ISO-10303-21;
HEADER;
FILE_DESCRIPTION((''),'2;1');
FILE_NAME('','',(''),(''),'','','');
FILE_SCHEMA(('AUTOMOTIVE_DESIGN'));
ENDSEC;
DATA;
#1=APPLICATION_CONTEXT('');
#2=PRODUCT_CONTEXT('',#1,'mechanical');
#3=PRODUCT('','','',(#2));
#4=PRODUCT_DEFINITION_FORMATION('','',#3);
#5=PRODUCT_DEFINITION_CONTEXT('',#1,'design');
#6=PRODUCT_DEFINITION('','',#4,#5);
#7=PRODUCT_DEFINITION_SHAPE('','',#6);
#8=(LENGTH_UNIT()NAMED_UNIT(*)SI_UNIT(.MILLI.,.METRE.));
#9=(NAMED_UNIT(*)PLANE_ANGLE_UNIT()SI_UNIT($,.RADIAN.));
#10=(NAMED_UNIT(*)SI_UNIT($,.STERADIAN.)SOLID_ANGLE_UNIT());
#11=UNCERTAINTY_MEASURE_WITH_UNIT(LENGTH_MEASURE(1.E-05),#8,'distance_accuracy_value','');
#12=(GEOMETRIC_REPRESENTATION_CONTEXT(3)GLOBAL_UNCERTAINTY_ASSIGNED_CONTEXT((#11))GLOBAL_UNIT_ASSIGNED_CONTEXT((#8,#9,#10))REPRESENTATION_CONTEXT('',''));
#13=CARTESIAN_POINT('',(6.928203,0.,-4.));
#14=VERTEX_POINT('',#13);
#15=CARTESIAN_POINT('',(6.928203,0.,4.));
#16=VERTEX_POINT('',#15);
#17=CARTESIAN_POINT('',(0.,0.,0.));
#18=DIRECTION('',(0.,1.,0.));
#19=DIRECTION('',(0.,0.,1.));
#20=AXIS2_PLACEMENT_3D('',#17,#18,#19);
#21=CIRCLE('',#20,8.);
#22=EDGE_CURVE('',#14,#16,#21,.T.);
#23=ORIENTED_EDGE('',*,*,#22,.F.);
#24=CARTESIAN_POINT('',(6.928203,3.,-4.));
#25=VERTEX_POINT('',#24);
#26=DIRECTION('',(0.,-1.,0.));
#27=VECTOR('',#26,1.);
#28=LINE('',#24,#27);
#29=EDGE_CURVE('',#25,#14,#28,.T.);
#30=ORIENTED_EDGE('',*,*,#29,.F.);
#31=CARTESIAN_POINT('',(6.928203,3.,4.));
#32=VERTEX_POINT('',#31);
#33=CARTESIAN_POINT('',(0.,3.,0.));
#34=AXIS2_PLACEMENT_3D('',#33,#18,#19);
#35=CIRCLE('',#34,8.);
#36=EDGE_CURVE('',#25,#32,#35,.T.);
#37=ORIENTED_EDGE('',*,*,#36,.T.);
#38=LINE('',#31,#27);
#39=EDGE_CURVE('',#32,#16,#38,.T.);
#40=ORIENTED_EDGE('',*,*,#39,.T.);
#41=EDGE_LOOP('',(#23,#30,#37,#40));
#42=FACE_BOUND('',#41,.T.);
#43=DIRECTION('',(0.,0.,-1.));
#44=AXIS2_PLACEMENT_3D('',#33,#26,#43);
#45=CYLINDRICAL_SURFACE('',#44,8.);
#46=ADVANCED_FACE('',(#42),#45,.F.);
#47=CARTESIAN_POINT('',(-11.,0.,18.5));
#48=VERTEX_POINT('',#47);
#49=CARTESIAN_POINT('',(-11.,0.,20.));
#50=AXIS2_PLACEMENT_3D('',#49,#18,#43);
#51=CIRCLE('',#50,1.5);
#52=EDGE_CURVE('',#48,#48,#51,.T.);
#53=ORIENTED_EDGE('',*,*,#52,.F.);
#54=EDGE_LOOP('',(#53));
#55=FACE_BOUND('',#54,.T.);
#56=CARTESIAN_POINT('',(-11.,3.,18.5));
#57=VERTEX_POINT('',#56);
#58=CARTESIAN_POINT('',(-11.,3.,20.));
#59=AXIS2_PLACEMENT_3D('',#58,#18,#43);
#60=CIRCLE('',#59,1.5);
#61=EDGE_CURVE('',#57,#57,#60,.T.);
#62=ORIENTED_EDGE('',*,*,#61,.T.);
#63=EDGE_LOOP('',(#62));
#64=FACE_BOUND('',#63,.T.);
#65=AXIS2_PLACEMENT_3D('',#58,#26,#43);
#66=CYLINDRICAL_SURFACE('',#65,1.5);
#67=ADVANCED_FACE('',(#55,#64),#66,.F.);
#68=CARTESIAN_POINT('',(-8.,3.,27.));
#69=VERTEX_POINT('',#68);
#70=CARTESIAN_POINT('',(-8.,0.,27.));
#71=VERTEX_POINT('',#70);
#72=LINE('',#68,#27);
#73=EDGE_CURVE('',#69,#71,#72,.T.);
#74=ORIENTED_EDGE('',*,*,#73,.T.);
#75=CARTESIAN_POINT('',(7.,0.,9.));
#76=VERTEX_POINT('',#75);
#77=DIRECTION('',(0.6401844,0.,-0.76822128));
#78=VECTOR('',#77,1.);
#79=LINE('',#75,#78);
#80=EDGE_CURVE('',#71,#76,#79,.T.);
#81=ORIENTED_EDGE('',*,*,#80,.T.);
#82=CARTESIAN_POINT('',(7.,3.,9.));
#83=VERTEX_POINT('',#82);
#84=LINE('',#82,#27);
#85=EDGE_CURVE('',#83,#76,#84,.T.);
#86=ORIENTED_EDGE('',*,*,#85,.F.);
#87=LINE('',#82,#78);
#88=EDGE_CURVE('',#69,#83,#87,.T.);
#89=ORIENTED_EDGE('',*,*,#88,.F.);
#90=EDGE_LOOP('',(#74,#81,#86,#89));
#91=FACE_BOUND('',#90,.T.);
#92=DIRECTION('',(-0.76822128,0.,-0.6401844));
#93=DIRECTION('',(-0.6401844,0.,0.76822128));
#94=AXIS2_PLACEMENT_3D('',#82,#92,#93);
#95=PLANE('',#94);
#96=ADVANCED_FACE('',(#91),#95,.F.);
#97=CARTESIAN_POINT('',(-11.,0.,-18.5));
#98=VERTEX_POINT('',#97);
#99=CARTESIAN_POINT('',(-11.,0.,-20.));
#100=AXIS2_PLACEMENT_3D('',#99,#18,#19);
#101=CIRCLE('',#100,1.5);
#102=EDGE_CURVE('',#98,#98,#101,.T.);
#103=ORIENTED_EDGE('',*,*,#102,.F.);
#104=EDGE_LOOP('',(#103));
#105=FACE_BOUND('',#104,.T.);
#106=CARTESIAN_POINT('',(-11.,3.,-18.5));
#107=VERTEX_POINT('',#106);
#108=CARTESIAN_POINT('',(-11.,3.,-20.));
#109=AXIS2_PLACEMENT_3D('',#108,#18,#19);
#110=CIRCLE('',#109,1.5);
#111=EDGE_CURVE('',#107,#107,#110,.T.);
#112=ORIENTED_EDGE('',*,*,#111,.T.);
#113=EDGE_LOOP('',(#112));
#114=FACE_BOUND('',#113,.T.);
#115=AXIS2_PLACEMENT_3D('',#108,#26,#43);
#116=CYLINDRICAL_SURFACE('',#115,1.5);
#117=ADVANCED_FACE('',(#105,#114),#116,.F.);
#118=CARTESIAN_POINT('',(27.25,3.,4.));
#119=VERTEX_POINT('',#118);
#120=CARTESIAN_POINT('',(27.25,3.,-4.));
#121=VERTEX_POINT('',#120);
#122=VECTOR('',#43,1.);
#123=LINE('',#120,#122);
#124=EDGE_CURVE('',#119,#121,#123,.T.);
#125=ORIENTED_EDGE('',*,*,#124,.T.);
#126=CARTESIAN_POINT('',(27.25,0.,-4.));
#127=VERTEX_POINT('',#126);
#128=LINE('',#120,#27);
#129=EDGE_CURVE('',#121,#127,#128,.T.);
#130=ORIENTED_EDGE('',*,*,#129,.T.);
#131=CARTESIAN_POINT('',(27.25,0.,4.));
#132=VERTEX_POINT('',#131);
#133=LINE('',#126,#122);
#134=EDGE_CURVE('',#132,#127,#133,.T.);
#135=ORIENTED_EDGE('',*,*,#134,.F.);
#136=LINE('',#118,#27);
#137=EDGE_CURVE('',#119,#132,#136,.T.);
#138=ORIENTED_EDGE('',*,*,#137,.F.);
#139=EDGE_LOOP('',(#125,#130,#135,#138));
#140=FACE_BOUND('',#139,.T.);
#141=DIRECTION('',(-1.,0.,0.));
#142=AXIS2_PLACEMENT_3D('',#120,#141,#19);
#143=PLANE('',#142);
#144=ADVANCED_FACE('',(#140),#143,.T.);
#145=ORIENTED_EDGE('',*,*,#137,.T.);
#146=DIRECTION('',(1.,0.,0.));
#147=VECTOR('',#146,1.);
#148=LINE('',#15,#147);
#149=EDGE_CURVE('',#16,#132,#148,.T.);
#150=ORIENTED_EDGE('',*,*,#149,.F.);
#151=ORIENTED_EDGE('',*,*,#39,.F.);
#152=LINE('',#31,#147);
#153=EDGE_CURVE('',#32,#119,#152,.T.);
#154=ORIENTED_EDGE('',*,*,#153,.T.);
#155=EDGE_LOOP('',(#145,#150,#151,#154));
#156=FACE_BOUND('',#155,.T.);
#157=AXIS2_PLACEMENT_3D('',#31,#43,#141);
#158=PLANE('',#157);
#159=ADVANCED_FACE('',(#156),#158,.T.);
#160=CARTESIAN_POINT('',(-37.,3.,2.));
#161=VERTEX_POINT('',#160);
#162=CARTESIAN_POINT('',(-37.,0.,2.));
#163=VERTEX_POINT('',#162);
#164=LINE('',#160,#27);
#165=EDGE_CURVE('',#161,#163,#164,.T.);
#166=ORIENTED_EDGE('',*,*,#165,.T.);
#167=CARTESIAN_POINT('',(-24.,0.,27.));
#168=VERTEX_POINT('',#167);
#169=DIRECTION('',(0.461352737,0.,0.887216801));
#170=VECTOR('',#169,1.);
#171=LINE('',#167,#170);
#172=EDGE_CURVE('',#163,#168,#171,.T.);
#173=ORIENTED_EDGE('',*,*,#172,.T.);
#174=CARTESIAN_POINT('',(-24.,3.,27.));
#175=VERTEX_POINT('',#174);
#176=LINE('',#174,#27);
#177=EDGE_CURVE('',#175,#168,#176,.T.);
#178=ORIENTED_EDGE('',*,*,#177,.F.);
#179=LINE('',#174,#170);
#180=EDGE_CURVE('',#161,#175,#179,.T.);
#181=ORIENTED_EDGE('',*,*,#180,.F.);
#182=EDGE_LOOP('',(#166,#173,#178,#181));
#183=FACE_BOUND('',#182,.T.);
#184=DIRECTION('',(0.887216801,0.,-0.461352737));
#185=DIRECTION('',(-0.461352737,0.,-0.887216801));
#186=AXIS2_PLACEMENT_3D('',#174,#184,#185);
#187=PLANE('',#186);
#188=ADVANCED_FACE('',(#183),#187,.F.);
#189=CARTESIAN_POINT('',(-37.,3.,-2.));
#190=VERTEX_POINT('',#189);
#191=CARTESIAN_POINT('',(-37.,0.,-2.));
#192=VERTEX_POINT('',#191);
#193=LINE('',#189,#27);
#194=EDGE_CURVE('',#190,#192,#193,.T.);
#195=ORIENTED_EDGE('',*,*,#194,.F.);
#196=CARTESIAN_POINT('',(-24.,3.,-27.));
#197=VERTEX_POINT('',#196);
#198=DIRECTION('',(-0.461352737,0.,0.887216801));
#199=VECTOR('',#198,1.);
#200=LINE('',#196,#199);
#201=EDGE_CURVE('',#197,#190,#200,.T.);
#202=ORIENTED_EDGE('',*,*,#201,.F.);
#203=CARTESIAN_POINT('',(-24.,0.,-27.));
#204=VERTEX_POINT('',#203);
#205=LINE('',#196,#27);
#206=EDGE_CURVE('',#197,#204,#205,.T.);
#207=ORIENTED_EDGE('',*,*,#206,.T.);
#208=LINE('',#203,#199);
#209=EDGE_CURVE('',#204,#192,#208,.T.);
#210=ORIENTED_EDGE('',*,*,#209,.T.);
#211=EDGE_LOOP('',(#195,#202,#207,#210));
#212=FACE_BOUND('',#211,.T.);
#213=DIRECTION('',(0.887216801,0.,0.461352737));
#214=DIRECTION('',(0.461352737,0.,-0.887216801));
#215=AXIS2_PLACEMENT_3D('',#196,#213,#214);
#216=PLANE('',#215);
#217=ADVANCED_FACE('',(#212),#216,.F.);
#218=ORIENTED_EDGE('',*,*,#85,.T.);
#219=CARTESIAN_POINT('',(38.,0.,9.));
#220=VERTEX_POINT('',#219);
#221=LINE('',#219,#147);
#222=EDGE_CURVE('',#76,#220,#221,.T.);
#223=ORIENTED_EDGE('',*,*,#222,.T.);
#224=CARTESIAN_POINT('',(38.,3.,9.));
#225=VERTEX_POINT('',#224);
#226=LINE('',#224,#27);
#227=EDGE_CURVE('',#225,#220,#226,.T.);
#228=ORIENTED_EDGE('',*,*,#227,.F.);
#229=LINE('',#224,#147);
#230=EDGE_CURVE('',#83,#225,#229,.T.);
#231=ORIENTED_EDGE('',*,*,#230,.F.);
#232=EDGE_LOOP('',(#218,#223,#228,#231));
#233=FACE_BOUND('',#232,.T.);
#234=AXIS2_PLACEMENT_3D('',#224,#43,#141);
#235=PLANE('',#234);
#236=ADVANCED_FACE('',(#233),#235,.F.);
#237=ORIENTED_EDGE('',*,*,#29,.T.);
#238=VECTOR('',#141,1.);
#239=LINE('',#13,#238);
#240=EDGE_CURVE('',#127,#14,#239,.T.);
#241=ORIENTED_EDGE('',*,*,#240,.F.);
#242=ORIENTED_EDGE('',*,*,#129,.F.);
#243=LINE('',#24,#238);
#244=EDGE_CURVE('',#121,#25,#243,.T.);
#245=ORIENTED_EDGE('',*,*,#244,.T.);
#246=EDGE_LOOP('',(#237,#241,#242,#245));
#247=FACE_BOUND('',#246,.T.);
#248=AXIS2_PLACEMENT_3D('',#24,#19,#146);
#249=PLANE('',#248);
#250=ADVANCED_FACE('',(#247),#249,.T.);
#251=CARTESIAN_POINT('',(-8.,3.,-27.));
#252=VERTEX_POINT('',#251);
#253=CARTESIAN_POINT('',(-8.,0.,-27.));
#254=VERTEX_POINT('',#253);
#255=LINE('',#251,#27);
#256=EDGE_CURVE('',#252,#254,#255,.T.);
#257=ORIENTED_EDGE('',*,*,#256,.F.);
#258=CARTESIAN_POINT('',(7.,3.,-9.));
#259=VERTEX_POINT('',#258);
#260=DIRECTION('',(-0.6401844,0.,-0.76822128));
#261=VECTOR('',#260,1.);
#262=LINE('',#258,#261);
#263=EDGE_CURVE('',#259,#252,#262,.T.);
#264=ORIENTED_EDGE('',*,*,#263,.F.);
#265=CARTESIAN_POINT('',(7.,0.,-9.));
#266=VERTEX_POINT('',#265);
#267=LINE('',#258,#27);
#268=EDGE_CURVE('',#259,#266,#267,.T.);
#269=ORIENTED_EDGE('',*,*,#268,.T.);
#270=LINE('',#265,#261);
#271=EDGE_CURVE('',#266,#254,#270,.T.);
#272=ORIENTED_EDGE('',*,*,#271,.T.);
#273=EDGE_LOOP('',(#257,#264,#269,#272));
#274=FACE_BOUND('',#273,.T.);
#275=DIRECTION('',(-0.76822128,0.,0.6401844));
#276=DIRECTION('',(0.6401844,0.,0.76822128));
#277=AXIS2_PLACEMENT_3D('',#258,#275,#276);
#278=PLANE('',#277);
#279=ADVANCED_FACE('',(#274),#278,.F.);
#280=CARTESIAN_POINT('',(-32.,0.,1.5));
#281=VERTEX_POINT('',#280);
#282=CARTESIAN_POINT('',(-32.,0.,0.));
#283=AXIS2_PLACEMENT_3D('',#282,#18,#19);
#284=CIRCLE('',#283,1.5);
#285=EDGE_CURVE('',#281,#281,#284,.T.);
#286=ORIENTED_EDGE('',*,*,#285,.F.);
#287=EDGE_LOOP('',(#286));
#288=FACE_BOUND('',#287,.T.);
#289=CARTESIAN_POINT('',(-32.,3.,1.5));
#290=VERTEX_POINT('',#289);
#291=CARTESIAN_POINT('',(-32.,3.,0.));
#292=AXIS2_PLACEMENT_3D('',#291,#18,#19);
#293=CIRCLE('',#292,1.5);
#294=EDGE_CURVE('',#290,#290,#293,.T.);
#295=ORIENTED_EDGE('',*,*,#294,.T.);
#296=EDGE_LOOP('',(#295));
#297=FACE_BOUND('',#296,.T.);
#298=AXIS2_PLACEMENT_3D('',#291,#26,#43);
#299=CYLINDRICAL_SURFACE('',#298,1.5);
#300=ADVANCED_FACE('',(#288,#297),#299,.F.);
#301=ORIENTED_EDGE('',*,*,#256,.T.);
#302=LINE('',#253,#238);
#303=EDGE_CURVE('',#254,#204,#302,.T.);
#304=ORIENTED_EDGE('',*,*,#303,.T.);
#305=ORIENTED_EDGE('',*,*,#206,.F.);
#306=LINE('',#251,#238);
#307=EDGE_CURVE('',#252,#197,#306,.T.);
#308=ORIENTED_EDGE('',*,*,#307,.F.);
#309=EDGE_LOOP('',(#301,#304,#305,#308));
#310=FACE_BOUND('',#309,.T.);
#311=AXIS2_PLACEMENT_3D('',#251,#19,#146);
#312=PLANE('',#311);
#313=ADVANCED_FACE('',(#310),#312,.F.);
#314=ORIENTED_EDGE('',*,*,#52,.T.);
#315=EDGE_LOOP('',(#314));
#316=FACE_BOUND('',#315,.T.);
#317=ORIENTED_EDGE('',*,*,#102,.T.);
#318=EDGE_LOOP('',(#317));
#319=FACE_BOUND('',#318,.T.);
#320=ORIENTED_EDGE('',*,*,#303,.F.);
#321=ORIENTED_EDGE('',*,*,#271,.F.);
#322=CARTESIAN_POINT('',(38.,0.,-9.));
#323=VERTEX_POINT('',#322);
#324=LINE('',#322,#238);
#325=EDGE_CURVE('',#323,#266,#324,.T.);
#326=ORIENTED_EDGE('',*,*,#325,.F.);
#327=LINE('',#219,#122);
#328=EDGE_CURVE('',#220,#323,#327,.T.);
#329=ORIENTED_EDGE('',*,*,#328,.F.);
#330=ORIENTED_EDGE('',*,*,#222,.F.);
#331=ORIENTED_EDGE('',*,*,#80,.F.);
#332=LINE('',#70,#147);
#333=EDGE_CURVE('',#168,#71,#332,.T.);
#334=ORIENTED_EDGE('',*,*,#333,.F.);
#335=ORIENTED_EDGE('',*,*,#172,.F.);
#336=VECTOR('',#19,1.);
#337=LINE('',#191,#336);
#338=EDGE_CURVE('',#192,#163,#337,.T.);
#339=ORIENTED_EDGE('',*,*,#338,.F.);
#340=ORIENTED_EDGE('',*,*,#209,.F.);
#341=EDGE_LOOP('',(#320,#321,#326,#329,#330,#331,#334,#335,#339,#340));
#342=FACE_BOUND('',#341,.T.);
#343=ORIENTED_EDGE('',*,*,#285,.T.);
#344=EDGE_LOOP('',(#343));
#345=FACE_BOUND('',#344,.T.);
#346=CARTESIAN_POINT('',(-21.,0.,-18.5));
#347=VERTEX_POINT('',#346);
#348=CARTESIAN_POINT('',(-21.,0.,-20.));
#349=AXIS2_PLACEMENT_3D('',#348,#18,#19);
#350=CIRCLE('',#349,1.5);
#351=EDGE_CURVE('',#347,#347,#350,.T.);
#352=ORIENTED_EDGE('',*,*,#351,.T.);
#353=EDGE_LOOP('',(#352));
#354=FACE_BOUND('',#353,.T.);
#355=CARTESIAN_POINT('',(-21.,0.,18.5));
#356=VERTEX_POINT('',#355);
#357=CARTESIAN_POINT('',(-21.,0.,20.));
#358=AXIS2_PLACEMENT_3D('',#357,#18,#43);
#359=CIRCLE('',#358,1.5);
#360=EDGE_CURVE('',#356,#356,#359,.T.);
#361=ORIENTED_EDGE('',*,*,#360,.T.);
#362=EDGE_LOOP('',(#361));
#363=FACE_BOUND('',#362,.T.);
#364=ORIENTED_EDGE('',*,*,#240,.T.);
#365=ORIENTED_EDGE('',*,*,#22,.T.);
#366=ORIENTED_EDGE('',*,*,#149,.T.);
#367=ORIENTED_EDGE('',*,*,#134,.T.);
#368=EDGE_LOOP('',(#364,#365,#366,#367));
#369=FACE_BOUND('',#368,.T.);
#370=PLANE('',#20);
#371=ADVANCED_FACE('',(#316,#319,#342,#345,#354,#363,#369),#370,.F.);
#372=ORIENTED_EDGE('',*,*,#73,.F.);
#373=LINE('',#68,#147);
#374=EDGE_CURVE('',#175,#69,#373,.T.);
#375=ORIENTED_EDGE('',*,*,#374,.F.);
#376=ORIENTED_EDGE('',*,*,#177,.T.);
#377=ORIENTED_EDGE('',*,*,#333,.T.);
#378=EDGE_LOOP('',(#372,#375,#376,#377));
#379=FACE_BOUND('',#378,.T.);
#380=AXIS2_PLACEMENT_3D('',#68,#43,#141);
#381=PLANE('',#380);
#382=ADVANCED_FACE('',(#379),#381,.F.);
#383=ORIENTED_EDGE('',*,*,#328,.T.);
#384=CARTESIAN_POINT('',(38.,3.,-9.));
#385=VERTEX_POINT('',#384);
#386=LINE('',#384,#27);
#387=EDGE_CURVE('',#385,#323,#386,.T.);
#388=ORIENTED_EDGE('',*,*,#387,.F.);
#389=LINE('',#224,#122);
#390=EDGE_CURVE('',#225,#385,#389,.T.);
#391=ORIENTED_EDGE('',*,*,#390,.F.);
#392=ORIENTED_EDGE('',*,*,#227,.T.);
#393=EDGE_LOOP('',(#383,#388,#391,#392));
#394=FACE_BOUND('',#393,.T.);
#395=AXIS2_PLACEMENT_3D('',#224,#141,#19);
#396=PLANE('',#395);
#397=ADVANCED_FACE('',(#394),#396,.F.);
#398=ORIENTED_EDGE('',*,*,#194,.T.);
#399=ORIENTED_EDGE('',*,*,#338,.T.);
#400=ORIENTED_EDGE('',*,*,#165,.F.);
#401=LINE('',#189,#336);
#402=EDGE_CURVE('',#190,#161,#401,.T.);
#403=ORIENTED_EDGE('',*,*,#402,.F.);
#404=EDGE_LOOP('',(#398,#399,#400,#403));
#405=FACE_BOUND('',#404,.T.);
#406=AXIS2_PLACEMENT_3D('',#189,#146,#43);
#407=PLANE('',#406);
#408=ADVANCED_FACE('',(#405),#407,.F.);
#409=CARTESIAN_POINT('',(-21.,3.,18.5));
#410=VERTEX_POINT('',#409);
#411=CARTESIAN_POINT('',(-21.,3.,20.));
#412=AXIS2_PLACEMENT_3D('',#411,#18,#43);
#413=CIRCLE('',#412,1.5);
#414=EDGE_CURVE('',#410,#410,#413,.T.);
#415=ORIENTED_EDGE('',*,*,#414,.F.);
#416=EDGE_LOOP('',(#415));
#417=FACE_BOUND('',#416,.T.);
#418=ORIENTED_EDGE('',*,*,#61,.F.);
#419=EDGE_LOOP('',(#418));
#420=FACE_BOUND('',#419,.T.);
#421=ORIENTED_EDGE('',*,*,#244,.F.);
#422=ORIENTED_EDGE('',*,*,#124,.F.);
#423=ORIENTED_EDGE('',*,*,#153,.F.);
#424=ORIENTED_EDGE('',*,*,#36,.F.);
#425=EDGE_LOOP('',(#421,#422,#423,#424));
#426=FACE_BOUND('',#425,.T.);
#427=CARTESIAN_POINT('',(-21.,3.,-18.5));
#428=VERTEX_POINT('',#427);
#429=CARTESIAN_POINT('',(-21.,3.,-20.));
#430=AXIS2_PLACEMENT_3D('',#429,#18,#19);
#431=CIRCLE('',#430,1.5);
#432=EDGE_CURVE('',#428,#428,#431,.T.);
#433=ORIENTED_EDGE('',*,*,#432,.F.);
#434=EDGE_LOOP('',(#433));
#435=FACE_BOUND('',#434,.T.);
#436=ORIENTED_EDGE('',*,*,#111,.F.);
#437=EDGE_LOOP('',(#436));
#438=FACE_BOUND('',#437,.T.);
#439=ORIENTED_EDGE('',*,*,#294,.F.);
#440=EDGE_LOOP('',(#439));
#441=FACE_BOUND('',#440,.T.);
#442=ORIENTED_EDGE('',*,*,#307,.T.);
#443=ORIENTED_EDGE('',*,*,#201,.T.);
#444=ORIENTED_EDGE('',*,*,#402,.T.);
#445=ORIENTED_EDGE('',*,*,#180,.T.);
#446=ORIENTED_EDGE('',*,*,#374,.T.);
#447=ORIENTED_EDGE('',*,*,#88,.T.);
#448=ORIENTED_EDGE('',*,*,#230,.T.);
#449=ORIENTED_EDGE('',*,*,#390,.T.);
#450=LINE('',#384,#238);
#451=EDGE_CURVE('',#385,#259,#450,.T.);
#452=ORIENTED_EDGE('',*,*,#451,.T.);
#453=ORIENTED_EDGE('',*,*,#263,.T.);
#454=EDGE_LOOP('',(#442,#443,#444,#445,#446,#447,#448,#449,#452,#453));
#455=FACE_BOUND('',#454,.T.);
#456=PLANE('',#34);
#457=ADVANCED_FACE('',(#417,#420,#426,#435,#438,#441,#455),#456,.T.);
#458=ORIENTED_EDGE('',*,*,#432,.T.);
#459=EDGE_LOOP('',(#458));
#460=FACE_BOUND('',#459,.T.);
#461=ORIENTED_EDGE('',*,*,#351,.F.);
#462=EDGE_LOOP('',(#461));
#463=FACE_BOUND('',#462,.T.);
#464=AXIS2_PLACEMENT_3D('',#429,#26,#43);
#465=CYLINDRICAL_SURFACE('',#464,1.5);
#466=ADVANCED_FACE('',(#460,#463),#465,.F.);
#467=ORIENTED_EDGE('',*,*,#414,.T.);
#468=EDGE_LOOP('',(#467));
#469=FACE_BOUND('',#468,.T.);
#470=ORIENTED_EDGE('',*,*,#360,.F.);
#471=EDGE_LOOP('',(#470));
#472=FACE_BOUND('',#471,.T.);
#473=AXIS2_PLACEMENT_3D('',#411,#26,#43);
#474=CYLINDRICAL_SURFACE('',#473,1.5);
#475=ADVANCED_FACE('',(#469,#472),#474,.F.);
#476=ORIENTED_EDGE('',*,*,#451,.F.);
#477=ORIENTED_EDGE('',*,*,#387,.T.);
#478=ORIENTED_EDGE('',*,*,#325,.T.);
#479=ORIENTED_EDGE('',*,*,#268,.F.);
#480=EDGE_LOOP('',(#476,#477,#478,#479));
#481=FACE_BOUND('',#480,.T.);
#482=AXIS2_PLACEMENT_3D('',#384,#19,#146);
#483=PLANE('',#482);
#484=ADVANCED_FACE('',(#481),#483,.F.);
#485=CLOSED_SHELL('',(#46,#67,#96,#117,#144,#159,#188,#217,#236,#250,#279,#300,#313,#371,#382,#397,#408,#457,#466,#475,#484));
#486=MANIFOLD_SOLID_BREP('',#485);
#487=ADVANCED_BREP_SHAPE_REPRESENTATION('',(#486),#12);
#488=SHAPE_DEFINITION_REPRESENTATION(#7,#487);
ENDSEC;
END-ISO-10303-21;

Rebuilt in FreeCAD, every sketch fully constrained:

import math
import FreeCAD as App
import Part
import Sketcher
from FreeCAD import Vector
Q = App.Units.Quantity

doc = App.newDocument("Part")
body = doc.addObject("PartDesign::Body", "Body")

# Sketch on XZ plane
sketch1 = body.newObject("Sketcher::SketchObject", "Sketch")
sketch1.AttachmentSupport = (doc.getObject("XZ_Plane"), [""])
sketch1.MapMode = "FlatFace"
sketch1.addGeometry([
    Part.LineSegment(Vector(38, 9, 0), Vector(38, -9, 0)),  # 0
    Part.LineSegment(Vector(38, -9, 0), Vector(7, -9, 0)),  # 1
    Part.LineSegment(Vector(7, -9, 0), Vector(-8, -27, 0)),  # 2
    Part.LineSegment(Vector(-8, -27, 0), Vector(-24, -27, 0)),  # 3
    Part.LineSegment(Vector(-24, -27, 0), Vector(-37, -2, 0)),  # 4
    Part.LineSegment(Vector(-37, -2, 0), Vector(-37, 2, 0)),  # 5
    Part.LineSegment(Vector(-37, 2, 0), Vector(-24, 27, 0)),  # 6
    Part.LineSegment(Vector(-24, 27, 0), Vector(-8, 27, 0)),  # 7
    Part.LineSegment(Vector(-8, 27, 0), Vector(7, 9, 0)),  # 8
    Part.LineSegment(Vector(7, 9, 0), Vector(38, 9, 0)),  # 9
    Part.Circle(Vector(-21, 20, 0), Vector(0, 0, 1), 1.5),  # 10
    Part.Circle(Vector(-11, 20, 0), Vector(0, 0, 1), 1.5),  # 11
    Part.Circle(Vector(-32, 0, 0), Vector(0, 0, 1), 1.5),  # 12
    Part.Circle(Vector(-21, -20, 0), Vector(0, 0, 1), 1.5),  # 13
    Part.Circle(Vector(-11, -20, 0), Vector(0, 0, 1), 1.5),  # 14
    Part.ArcOfCircle(Part.Circle(Vector(0, 0, 0), Vector(0, 0, 1), 8), math.radians(30), math.radians(330)),  # 15
    Part.LineSegment(Vector(6.9, -4, 0), Vector(27.2, -4, 0)),  # 16
    Part.LineSegment(Vector(27.2, -4, 0), Vector(27.2, 4, 0)),  # 17
    Part.LineSegment(Vector(27.2, 4, 0), Vector(6.9, 4, 0)),  # 18
], False)
sketch1.addConstraint([
    Sketcher.Constraint("Coincident", 0, 2, 1, 1),
    Sketcher.Constraint("Coincident", 1, 2, 2, 1),
    Sketcher.Constraint("Coincident", 2, 2, 3, 1),
    Sketcher.Constraint("Coincident", 3, 2, 4, 1),
    Sketcher.Constraint("Coincident", 4, 2, 5, 1),
    Sketcher.Constraint("Coincident", 5, 2, 6, 1),
    Sketcher.Constraint("Coincident", 6, 2, 7, 1),
    Sketcher.Constraint("Coincident", 7, 2, 8, 1),
    Sketcher.Constraint("Coincident", 8, 2, 9, 1),
    Sketcher.Constraint("Coincident", 9, 2, 0, 1),
    Sketcher.Constraint("Coincident", 15, 2, 16, 1),
    Sketcher.Constraint("Coincident", 16, 2, 17, 1),
    Sketcher.Constraint("Coincident", 17, 2, 18, 1),
    Sketcher.Constraint("Coincident", 18, 2, 15, 1),
    Sketcher.Constraint("Vertical", 0),
    Sketcher.Constraint("Horizontal", 1),
    Sketcher.Constraint("Horizontal", 3),
    Sketcher.Constraint("Vertical", 5),
    Sketcher.Constraint("Horizontal", 7),
    Sketcher.Constraint("Horizontal", 9),
    Sketcher.Constraint("Horizontal", 16),
    Sketcher.Constraint("Vertical", 17),
    Sketcher.Constraint("Horizontal", 18),
    Sketcher.Constraint("Coincident", 15, 3, -1, 1),
    Sketcher.Constraint("Equal", 10, 11),
    Sketcher.Constraint("Equal", 11, 12),
    Sketcher.Constraint("Equal", 12, 13),
    Sketcher.Constraint("Equal", 13, 14),
    Sketcher.Constraint("Symmetric", 10, 3, 13, 3, -1),
    Sketcher.Constraint("Symmetric", 11, 3, 14, 3, -1),
    Sketcher.Constraint("Symmetric", 3, 2, 6, 2, -1),
    Sketcher.Constraint("Symmetric", 1, 2, 8, 2, -1),
    Sketcher.Constraint("PointOnObject", 12, 3, -1),
    Sketcher.Constraint("Horizontal", 10, 3, 11, 3),
    Sketcher.Constraint("Vertical", 2, 2, 7, 2),
    Sketcher.Constraint("Vertical", 15, 2, 18, 2),
    Sketcher.Constraint("Equal", 4, 6),
    Sketcher.Constraint("Diameter", 10, Q("3 mm")),
    Sketcher.Constraint("Radius", 15, Q("8 mm")),
    Sketcher.Constraint("DistanceX", 1, 2, 1, 1, Q("31 mm")),
    Sketcher.Constraint("DistanceX", 3, 2, 3, 1, Q("16 mm")),
    Sketcher.Constraint("DistanceY", 0, 2, 0, 1, Q("18 mm")),
    Sketcher.Constraint("DistanceY", 5, 1, 5, 2, Q("4 mm")),
    Sketcher.Constraint("DistanceY", 17, 1, 17, 2, Q("8 mm")),
    Sketcher.Constraint("DistanceX", 10, 3, -1, 1, Q("21 mm")),
    Sketcher.Constraint("DistanceY", -1, 1, 10, 3, Q("20 mm")),
    Sketcher.Constraint("DistanceX", 11, 3, -1, 1, Q("11 mm")),
    Sketcher.Constraint("DistanceX", 12, 3, -1, 1, Q("32 mm")),
    Sketcher.Constraint("DistanceX", -1, 1, 0, 2, Q("38 mm")),
    Sketcher.Constraint("DistanceX", 2, 2, -1, 1, Q("8 mm")),
    Sketcher.Constraint("DistanceY", 2, 2, -1, 1, Q("27 mm")),
    Sketcher.Constraint("DistanceX", 4, 2, -1, 1, Q("37 mm")),
    Sketcher.Constraint("DistanceX", -1, 1, 16, 2, Q("27.25 mm")),
])
pad1 = body.newObject("PartDesign::Pad", "Pad")
pad1.Profile = sketch1
pad1.Length = 3
pad1.Reversed = True

doc.recompute()
